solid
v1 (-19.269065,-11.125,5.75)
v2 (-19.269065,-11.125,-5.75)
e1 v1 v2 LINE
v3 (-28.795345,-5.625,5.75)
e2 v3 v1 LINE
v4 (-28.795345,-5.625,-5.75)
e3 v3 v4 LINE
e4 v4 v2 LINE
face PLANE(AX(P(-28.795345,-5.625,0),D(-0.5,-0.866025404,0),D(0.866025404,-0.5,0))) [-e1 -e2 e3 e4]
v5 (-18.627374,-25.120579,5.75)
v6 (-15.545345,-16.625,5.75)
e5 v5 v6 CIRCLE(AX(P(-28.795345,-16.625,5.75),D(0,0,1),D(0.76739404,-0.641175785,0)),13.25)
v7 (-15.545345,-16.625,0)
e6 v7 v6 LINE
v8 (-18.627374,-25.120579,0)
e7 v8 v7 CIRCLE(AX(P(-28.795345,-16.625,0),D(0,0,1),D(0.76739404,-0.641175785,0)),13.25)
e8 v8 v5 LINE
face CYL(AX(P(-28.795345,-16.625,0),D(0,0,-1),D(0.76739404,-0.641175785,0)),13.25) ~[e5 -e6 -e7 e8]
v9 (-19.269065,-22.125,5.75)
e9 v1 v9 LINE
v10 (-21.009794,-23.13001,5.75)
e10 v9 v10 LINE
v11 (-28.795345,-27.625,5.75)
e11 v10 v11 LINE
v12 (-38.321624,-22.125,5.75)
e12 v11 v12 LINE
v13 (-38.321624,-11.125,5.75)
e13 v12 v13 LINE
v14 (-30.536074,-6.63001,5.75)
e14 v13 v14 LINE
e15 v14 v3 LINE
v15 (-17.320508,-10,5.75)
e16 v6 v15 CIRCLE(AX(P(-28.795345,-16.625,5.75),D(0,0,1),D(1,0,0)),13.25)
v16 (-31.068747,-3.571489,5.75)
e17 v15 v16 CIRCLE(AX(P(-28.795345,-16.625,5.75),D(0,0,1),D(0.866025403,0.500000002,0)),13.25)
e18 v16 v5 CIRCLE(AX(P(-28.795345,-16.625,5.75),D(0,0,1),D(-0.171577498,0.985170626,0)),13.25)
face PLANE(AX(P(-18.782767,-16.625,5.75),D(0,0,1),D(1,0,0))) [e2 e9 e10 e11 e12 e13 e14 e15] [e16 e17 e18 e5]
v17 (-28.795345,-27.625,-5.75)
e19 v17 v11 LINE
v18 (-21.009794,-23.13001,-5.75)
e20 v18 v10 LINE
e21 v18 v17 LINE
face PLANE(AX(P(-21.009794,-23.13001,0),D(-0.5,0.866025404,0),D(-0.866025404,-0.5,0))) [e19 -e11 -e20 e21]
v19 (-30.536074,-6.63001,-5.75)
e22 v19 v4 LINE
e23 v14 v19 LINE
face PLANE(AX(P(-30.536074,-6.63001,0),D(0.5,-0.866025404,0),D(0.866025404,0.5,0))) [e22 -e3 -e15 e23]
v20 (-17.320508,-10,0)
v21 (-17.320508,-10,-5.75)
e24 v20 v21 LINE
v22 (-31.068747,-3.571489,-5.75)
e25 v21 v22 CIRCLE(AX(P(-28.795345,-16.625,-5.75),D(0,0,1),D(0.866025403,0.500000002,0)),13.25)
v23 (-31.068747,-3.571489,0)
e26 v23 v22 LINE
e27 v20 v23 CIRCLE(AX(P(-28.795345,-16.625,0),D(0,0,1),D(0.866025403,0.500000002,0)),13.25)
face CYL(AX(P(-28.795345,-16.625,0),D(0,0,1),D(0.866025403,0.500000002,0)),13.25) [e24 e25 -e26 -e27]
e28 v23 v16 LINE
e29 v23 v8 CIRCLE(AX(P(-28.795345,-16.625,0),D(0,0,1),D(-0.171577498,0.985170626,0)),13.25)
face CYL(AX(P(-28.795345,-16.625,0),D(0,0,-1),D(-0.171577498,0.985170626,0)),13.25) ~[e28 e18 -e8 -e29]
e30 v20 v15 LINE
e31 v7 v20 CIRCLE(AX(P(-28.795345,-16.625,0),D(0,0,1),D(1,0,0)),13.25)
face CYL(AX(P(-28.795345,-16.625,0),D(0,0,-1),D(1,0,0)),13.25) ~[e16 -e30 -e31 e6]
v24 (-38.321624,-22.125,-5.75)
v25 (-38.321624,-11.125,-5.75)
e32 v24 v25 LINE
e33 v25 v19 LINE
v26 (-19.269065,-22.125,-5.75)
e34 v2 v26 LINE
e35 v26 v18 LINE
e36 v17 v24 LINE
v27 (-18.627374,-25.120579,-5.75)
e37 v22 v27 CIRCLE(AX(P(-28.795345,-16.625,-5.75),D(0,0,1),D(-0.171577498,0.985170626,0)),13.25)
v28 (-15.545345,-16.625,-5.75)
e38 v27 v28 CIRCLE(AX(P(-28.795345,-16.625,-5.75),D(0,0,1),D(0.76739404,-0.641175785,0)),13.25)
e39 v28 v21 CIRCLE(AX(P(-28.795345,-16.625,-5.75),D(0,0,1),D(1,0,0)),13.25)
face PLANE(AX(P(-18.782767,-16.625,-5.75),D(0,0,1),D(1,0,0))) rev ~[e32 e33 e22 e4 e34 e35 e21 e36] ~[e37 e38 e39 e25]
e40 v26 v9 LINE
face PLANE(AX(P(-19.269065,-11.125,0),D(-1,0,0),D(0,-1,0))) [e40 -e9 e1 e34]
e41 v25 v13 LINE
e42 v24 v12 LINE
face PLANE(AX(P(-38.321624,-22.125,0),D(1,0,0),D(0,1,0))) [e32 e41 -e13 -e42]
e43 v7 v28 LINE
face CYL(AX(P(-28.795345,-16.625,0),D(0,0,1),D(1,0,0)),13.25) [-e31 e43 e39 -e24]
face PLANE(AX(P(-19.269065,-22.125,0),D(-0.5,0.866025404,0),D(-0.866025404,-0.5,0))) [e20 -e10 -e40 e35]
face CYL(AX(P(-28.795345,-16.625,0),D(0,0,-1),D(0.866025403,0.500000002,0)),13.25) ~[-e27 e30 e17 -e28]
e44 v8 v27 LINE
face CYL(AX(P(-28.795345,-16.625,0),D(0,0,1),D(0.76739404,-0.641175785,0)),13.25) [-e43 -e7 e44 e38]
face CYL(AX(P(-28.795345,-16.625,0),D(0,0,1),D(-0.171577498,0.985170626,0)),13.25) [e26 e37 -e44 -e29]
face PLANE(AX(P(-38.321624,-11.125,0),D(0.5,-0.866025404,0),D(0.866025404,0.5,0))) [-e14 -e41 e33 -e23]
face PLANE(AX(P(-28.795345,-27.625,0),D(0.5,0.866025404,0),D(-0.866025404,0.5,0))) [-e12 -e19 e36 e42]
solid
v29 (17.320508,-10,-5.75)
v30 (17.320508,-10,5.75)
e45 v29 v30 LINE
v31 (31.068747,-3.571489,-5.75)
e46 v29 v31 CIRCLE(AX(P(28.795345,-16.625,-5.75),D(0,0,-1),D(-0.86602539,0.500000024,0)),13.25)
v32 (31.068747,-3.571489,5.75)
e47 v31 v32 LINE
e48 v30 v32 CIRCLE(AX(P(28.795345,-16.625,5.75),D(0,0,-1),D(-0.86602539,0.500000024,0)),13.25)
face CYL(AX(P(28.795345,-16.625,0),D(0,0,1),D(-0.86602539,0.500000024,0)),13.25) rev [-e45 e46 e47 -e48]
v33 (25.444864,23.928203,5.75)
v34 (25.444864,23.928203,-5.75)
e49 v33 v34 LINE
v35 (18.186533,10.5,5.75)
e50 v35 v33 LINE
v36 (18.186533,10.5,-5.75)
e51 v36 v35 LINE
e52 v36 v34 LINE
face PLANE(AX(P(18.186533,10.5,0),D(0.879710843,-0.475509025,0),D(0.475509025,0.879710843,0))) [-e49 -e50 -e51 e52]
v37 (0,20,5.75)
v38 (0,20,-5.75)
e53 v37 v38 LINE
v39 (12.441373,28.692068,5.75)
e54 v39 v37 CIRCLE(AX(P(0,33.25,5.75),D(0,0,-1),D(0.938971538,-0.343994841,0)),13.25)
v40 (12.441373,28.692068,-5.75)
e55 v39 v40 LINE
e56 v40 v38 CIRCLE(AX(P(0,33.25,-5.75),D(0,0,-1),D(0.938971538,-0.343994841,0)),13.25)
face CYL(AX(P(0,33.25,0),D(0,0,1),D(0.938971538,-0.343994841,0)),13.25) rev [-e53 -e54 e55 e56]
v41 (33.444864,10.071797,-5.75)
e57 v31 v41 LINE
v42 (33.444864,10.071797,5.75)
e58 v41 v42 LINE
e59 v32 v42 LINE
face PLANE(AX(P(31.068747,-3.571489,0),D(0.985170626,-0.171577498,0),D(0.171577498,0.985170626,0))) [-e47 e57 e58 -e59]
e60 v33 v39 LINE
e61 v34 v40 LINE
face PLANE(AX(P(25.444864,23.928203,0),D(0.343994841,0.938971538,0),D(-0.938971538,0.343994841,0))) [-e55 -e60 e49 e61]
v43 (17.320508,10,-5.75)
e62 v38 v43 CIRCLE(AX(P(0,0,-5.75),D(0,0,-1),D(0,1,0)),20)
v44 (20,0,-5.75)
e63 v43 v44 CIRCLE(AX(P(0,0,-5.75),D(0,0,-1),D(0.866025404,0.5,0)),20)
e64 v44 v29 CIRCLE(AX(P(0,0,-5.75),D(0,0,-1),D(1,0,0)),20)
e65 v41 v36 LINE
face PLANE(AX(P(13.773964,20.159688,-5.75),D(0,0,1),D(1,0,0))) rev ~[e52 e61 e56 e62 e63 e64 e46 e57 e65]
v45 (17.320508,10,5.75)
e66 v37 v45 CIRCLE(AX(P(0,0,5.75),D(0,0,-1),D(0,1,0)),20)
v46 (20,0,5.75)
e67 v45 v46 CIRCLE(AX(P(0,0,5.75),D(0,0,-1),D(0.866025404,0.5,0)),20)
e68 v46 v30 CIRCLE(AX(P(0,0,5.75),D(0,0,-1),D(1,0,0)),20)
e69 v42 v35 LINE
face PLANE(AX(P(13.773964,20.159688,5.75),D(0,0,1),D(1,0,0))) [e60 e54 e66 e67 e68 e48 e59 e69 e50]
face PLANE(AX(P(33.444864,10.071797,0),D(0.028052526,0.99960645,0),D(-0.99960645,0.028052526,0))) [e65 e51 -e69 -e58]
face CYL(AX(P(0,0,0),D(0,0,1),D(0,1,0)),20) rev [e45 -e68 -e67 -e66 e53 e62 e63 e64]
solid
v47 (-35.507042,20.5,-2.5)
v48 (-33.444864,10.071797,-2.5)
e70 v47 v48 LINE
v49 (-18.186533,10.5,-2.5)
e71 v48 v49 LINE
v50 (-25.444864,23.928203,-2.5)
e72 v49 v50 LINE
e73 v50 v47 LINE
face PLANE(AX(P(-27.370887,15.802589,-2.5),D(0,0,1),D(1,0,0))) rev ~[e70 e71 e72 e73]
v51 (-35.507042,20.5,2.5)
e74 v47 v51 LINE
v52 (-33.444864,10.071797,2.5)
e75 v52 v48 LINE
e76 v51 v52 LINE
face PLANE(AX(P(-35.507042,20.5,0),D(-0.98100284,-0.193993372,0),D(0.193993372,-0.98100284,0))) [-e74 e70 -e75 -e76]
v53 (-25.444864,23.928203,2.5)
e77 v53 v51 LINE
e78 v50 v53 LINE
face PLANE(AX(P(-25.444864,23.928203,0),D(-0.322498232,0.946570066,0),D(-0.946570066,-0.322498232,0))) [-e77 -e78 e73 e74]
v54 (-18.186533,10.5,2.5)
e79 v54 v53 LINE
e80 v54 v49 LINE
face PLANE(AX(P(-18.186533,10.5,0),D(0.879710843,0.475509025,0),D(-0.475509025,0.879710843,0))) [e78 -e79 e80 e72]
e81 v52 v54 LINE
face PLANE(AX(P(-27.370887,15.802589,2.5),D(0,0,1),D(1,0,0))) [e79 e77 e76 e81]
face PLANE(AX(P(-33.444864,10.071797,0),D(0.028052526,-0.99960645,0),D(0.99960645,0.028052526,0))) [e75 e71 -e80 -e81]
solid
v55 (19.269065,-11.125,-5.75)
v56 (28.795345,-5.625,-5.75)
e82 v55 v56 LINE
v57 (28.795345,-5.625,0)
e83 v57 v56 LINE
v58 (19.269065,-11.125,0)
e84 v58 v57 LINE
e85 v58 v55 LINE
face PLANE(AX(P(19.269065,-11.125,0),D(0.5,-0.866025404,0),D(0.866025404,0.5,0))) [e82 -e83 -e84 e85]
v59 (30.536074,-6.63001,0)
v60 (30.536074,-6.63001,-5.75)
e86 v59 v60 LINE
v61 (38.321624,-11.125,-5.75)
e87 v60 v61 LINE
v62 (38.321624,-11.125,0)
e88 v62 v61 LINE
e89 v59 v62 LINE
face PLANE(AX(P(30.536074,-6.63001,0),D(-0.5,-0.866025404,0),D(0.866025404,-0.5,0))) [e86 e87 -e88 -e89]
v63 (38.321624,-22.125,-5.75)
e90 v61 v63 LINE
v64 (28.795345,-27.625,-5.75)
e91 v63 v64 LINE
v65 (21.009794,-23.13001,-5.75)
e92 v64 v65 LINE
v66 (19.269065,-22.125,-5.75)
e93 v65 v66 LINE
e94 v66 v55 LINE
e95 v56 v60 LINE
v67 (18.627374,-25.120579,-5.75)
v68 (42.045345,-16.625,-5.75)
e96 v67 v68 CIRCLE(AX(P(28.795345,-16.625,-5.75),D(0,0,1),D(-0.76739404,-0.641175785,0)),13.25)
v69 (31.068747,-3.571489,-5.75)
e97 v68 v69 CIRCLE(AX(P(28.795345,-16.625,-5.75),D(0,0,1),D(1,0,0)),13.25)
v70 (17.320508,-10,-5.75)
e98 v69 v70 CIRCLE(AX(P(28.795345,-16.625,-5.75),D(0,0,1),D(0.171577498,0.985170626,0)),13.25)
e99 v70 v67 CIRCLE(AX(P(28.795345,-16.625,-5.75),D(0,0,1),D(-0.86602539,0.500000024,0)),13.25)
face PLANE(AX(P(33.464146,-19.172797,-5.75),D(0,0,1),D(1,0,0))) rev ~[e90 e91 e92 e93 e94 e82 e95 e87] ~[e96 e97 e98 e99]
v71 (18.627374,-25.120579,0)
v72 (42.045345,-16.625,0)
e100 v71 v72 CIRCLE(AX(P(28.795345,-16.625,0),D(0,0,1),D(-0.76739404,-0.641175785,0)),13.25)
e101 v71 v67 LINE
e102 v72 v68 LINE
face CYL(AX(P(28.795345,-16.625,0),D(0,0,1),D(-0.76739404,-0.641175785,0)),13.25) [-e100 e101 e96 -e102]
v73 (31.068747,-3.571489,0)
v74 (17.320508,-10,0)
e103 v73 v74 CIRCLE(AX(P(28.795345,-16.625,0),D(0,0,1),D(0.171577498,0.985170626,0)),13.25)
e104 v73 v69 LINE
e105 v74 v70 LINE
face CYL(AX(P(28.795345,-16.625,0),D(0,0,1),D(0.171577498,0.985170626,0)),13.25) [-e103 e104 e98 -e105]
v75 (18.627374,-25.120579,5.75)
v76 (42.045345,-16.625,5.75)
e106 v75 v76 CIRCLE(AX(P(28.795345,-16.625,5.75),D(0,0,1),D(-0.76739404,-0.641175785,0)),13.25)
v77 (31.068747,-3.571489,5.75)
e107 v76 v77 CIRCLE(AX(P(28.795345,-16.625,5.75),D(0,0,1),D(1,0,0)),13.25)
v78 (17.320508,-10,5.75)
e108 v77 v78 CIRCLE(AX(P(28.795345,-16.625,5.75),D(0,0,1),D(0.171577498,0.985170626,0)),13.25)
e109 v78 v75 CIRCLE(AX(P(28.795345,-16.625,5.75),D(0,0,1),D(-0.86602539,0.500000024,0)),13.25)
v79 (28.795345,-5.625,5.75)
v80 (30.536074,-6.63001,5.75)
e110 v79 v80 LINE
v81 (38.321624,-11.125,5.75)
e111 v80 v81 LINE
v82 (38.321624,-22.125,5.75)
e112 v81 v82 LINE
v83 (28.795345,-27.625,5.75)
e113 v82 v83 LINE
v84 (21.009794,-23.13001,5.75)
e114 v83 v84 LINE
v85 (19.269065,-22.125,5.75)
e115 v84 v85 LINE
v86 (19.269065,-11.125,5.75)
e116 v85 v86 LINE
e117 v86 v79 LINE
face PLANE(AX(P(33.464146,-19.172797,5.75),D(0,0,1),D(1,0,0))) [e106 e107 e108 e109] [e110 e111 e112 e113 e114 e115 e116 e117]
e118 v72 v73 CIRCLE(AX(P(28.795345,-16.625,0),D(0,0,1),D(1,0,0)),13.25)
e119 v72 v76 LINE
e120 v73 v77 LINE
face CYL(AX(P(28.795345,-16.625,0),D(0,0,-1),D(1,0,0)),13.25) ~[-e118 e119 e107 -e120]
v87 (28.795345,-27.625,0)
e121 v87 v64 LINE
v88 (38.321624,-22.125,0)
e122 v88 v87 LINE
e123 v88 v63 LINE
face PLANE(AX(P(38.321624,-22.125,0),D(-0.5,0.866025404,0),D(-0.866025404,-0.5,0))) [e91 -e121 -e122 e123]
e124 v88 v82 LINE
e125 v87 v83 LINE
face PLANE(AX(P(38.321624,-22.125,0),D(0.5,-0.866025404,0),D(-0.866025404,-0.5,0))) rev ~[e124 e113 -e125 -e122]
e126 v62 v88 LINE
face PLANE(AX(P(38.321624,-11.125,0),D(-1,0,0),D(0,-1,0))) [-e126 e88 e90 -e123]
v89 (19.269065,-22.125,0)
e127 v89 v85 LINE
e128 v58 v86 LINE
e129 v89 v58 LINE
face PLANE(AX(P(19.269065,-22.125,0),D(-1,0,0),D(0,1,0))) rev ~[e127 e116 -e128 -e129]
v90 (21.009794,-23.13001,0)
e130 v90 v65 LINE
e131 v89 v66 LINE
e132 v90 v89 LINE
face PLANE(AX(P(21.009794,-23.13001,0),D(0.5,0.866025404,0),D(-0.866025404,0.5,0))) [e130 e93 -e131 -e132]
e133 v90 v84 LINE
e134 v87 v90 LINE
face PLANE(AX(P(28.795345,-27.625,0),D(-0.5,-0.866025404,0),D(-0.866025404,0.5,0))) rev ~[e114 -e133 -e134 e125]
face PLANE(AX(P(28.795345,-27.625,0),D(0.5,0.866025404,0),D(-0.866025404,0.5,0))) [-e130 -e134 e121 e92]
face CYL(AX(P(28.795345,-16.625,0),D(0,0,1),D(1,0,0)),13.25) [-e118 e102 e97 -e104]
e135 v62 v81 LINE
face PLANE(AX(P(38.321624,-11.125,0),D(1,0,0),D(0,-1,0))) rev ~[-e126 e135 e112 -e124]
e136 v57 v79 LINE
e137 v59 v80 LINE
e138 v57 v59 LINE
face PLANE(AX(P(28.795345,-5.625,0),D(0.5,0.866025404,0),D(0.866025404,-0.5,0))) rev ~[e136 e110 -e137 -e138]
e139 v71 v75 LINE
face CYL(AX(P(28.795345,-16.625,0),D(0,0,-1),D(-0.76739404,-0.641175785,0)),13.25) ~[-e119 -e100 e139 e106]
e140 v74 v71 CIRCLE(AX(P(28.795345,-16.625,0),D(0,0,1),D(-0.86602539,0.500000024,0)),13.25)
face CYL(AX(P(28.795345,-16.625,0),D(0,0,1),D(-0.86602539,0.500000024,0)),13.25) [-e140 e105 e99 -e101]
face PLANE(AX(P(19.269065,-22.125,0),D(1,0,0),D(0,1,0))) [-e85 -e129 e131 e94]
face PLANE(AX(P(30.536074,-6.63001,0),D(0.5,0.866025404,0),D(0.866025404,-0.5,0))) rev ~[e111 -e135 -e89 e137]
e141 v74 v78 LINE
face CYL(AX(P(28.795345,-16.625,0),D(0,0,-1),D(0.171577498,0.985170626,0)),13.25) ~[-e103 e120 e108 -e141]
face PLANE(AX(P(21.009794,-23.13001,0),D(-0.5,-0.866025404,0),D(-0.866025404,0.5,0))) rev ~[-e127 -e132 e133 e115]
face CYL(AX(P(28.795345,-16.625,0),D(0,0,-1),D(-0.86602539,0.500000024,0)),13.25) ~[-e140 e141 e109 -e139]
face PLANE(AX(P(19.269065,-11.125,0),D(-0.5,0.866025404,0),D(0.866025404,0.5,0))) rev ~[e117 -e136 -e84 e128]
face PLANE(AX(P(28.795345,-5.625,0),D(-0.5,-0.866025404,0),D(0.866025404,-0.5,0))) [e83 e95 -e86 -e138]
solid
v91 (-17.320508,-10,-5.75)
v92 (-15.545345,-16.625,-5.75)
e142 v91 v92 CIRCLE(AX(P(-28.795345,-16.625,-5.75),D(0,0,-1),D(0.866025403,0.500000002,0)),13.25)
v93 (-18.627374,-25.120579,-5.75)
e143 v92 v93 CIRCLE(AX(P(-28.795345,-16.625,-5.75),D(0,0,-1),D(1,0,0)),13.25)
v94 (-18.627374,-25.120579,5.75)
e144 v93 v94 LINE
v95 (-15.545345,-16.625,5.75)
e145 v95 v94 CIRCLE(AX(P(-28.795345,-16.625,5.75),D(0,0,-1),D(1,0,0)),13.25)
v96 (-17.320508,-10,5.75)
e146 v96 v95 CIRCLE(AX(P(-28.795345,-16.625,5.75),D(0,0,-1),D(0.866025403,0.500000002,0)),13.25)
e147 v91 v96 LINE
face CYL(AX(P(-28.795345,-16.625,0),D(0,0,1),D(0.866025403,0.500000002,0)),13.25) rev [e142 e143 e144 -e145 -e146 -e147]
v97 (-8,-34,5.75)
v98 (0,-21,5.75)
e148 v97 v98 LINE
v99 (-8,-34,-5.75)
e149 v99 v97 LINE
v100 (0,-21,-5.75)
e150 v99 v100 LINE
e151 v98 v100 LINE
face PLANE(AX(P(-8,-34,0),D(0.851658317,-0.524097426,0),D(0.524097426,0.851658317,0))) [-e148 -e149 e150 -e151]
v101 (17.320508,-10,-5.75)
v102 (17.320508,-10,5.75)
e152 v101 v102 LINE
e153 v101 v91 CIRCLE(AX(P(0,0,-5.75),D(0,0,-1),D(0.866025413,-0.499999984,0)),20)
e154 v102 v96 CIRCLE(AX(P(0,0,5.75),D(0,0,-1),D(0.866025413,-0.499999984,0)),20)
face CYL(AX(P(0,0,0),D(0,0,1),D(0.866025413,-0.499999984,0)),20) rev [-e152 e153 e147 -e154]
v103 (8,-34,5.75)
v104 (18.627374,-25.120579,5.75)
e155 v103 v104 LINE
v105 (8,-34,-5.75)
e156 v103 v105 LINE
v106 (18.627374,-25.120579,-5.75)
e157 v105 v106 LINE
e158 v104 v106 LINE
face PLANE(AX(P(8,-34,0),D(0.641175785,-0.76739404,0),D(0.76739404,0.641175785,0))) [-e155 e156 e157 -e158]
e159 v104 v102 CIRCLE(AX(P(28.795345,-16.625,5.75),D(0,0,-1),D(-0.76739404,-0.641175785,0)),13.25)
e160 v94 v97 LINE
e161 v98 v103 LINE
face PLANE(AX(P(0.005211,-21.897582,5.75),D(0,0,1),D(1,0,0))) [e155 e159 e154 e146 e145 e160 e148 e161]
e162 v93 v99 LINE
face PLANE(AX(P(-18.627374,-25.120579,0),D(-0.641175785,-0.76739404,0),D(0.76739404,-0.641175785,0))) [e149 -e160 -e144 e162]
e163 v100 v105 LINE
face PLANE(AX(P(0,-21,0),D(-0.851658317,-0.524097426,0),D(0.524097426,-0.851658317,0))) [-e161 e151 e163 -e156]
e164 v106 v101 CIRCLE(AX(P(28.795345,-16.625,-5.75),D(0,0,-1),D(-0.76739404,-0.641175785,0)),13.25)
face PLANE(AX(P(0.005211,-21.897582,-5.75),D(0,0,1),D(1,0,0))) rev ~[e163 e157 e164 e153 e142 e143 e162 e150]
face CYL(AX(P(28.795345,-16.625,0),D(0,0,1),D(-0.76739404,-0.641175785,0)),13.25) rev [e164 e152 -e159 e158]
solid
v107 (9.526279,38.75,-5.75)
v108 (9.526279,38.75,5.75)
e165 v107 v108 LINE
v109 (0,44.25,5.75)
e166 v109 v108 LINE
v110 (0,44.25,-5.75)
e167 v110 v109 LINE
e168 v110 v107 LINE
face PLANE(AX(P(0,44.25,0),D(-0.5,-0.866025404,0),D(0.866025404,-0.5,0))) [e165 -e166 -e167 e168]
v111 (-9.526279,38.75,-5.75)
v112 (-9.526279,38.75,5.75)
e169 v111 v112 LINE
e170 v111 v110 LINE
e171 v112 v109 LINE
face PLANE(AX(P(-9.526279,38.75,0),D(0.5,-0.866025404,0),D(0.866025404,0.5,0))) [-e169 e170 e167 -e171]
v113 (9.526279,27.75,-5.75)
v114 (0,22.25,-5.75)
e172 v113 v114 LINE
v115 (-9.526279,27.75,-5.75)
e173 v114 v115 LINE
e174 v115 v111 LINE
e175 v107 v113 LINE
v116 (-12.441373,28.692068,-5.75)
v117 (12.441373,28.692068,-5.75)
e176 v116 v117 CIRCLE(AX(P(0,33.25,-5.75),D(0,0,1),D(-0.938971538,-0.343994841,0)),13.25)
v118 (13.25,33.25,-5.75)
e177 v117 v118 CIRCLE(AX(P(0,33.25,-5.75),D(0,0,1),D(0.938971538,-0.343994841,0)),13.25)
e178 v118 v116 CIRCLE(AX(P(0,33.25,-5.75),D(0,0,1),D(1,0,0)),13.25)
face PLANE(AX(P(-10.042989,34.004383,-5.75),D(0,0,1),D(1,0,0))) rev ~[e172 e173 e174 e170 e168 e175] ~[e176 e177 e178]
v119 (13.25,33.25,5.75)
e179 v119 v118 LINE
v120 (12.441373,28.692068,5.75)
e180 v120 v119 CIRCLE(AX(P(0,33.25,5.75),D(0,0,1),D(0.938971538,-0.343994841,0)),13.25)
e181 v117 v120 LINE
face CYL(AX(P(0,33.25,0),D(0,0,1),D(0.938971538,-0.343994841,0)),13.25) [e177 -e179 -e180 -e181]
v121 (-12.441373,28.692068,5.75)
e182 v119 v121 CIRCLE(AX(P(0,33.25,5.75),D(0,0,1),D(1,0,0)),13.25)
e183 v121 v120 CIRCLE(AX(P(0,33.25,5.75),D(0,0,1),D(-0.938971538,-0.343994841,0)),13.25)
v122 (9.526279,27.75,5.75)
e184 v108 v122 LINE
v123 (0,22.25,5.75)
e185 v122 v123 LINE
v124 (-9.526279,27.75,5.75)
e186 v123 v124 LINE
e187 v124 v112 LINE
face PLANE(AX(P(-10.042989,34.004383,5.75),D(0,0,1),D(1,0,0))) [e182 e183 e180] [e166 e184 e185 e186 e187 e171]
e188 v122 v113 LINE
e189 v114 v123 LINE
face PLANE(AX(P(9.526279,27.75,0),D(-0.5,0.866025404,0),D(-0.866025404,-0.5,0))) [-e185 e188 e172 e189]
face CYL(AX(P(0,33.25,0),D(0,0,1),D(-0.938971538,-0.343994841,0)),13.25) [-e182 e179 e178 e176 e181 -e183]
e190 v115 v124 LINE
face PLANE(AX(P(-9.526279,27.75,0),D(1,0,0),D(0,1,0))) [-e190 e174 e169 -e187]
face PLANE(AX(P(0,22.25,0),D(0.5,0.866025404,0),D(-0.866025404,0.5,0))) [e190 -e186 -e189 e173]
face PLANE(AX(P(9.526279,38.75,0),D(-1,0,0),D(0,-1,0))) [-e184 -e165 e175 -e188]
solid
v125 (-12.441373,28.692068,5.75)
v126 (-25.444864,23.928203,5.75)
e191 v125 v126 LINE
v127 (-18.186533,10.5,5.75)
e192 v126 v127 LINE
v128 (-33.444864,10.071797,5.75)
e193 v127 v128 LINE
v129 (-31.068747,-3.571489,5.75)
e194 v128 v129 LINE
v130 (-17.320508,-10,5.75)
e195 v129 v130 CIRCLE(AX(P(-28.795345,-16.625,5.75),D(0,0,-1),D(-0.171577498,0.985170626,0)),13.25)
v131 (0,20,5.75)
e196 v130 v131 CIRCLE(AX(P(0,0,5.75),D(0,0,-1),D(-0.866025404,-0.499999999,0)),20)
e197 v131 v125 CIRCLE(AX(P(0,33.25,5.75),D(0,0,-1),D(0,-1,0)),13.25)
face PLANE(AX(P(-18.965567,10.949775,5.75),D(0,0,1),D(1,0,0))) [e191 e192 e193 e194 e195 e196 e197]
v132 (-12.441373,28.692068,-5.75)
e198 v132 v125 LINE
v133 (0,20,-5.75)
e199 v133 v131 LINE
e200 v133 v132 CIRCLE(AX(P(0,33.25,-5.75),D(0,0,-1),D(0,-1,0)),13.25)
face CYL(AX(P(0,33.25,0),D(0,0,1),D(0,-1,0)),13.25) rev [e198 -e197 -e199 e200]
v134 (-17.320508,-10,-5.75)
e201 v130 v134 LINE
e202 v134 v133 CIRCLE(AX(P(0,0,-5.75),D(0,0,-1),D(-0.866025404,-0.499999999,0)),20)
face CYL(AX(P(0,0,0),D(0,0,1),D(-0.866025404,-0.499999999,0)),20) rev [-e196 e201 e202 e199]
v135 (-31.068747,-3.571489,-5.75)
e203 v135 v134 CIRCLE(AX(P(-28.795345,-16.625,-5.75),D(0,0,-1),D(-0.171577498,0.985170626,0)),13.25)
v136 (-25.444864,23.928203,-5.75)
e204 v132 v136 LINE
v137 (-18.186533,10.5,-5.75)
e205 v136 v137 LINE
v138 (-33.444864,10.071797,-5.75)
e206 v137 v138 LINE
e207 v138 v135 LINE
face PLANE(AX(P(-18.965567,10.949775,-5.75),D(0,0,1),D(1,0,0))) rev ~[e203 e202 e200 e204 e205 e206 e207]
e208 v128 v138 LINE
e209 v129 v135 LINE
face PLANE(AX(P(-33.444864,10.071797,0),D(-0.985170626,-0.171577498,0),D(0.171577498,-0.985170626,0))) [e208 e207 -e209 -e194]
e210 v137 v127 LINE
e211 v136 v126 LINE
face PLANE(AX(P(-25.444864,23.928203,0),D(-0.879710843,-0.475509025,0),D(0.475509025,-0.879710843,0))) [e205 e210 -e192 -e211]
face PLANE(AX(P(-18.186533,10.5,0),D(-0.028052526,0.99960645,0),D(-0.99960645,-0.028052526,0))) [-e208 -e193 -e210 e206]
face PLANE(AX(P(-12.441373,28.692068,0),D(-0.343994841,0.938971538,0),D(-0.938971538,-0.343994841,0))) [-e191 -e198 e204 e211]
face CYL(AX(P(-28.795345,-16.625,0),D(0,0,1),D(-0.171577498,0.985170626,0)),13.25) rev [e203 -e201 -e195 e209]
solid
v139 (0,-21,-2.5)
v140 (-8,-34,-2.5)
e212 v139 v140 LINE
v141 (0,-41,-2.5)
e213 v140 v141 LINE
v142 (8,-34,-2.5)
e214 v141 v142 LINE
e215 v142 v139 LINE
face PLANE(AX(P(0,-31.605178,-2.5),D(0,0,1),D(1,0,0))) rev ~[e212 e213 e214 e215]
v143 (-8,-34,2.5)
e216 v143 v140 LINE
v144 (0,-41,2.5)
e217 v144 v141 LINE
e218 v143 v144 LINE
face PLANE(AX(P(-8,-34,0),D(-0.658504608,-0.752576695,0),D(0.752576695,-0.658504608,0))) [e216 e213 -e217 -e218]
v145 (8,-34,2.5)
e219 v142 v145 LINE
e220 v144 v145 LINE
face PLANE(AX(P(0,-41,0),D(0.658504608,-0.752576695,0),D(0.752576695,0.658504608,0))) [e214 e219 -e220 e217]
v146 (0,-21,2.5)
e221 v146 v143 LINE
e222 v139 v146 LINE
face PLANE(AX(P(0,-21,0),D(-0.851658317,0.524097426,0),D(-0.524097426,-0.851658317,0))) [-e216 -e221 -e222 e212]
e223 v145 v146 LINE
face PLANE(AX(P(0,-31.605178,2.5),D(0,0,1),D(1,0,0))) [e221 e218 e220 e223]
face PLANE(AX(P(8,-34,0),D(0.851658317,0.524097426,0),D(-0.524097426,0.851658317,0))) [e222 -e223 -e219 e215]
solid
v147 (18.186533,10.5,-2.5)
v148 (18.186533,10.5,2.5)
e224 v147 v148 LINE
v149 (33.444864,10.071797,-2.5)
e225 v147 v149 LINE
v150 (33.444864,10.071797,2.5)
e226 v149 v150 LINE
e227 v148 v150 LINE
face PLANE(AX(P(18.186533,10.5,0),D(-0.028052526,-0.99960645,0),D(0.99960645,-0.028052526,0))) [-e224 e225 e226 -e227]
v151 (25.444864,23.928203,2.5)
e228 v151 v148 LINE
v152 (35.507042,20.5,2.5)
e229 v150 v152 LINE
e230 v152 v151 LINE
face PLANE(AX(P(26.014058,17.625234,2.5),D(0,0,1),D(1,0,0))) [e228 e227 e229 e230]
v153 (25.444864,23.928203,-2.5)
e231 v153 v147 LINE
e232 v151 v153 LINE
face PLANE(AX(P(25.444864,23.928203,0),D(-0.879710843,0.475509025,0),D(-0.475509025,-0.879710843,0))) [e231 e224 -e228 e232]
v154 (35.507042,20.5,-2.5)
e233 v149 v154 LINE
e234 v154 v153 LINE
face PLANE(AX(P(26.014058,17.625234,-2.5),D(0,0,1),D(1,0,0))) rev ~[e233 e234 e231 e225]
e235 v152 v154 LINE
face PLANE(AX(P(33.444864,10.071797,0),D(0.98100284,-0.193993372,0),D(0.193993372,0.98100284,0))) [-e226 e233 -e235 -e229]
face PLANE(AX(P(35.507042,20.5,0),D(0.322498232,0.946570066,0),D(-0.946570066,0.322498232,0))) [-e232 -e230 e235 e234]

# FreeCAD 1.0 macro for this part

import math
import FreeCAD as App
import Part
import Sketcher

V = App.Vector
Q = App.Units.Quantity

doc = App.newDocument("Part")
body = doc.addObject("PartDesign::Body", "Body")

# Sketch on XY plane
sketch1 = body.newObject("Sketcher::SketchObject", "Sketch")
sketch1.AttachmentSupport = (doc.getObject("XY_Plane"), [""])
sketch1.MapMode = "FlatFace"
sketch1.addGeometry(Part.ArcOfCircle(Part.Circle(V(0, 0, 0), V(0, 0, 1), 20), math.radians(30), math.radians(90)), False)
sketch1.addGeometry(Part.ArcOfCircle(Part.Circle(V(0, 0, 0), V(0, 0, 1), 20), math.radians(0), math.radians(30)), False)
sketch1.addGeometry(Part.ArcOfCircle(Part.Circle(V(0, 0, 0), V(0, 0, 1), 20), math.radians(-30), math.radians(0)), False)
sketch1.addGeometry(Part.ArcOfCircle(Part.Circle(V(29, -17, 0), V(0, 0, 1), 13), math.radians(80), math.radians(150)), False)
sketch1.addGeometry(Part.LineSegment(V(31, -4, 0), V(33, 10, 0)), False)
sketch1.addGeometry(Part.LineSegment(V(33, 10, 0), V(18, 10, 0)), False)
sketch1.addGeometry(Part.LineSegment(V(18, 10, 0), V(25, 24, 0)), False)
sketch1.addGeometry(Part.LineSegment(V(25, 24, 0), V(12, 29, 0)), False)
sketch1.addGeometry(Part.ArcOfCircle(Part.Circle(V(0, 33, 0), V(0, 0, 1), 13), math.radians(-90), math.radians(-20)), False)
sketch1.addConstraint(Sketcher.Constraint("Tangent", 0, 1, 1, 2))
sketch1.addConstraint(Sketcher.Constraint("Tangent", 1, 1, 2, 2))
sketch1.addConstraint(Sketcher.Constraint("Tangent", 2, 1, 3, 2))
sketch1.addConstraint(Sketcher.Constraint("Coincident", 3, 1, 4, 1))
sketch1.addConstraint(Sketcher.Constraint("Coincident", 4, 2, 5, 1))
sketch1.addConstraint(Sketcher.Constraint("Coincident", 5, 2, 6, 1))
sketch1.addConstraint(Sketcher.Constraint("Coincident", 6, 2, 7, 1))
sketch1.addConstraint(Sketcher.Constraint("Coincident", 7, 2, 8, 2))
sketch1.addConstraint(Sketcher.Constraint("Tangent", 8, 1, 0, 2))
sketch1.addConstraint(Sketcher.Constraint("Coincident", 0, 3, -1, 1))
sketch1.addConstraint(Sketcher.Constraint("Coincident", 2, 3, -1, 1))
sketch1.addConstraint(Sketcher.Constraint("Equal", 3, 8))
sketch1.addConstraint(Sketcher.Constraint("PointOnObject", 8, 3, -2))
sketch1.addConstraint(Sketcher.Constraint("PointOnObject", 1, 1, -1))
sketch1.addConstraint(Sketcher.Constraint("Vertical", 0, 1, 2, 1))
sketch1.addConstraint(Sketcher.Constraint("Equal", 5, 6))
sketch1.addConstraint(Sketcher.Constraint("Equal", 4, 7))
sketch1.addConstraint(Sketcher.Constraint("Radius", 0, Q("20 mm")))
sketch1.addConstraint(Sketcher.Constraint("Radius", 3, Q("13.25 mm")))
sketch1.addConstraint(Sketcher.Constraint("DistanceY", -1, 1, 0, 1, Q("10 mm")))
sketch1.addConstraint(Sketcher.Constraint("DistanceX", 6, 2, 4, 2, Q("8 mm")))
sketch1.addConstraint(Sketcher.Constraint("DistanceY", -1, 1, 5, 2, Q("10.5 mm")))
sketch1.addConstraint(Sketcher.Constraint("DistanceX", 3, 3, 3, 1, Q("2.273402 mm")))
sketch1.addConstraint(Sketcher.Constraint("DistanceY", -1, 1, 7, 2, Q("28.692068 mm")))
sketch1.addConstraint(Sketcher.Constraint("DistanceX", 3, 3, 4, 2, Q("4.649519 mm")))
sketch1.addConstraint(Sketcher.Constraint("DistanceX", 5, 2, 4, 2, Q("15.25833 mm")))
pad1 = body.newObject("PartDesign::Pad", "Pad")
pad1.Profile = sketch1
pad1.Length = 11.5
pad1.Midplane = True
body2 = doc.addObject("PartDesign::Body", "Body001")

# Sketch on XY plane
sketch2 = body2.newObject("Sketcher::SketchObject", "Sketch001")
sketch2.AttachmentSupport = (doc.getObject("XY_Plane001"), [""])
sketch2.MapMode = "FlatFace"
sketch2.addGeometry(Part.ArcOfCircle(Part.Circle(V(29, -17, 0), V(0, 0, 1), 13), math.radians(150), math.radians(220)), False)
sketch2.addGeometry(Part.ArcOfCircle(Part.Circle(V(0, 0, 0), V(0, 0, 1), 20), math.radians(-150), math.radians(-30)), False)
sketch2.addGeometry(Part.ArcOfCircle(Part.Circle(V(-29, -17, 0), V(0, 0, 1), 13), math.radians(0), math.radians(30)), False)
sketch2.addGeometry(Part.ArcOfCircle(Part.Circle(V(-29, -17, 0), V(0, 0, 1), 13), math.radians(-40), math.radians(0)), False)
sketch2.addGeometry(Part.LineSegment(V(-19, -25, 0), V(-8, -34, 0)), False)
sketch2.addGeometry(Part.LineSegment(V(-8, -34, 0), V(0, -21, 0)), False)
sketch2.addGeometry(Part.LineSegment(V(0, -21, 0), V(8, -34, 0)), False)
sketch2.addGeometry(Part.LineSegment(V(8, -34, 0), V(19, -25, 0)), False)
sketch2.addConstraint(Sketcher.Constraint("Tangent", 0, 1, 1, 2))
sketch2.addConstraint(Sketcher.Constraint("Tangent", 1, 1, 2, 2))
sketch2.addConstraint(Sketcher.Constraint("Tangent", 2, 1, 3, 2))
sketch2.addConstraint(Sketcher.Constraint("Coincident", 3, 1, 4, 1))
sketch2.addConstraint(Sketcher.Constraint("Coincident", 4, 2, 5, 1))
sketch2.addConstraint(Sketcher.Constraint("Coincident", 5, 2, 6, 1))
sketch2.addConstraint(Sketcher.Constraint("Coincident", 6, 2, 7, 1))
sketch2.addConstraint(Sketcher.Constraint("Coincident", 7, 2, 0, 2))
sketch2.addConstraint(Sketcher.Constraint("Coincident", 1, 3, -1, 1))
sketch2.addConstraint(Sketcher.Constraint("Equal", 0, 2))
sketch2.addConstraint(Sketcher.Constraint("Equal", 2, 3))
sketch2.addConstraint(Sketcher.Constraint("Symmetric", 4, 2, 6, 2, -2))
sketch2.addConstraint(Sketcher.Constraint("Symmetric", 3, 1, 7, 2, -2))
sketch2.addConstraint(Sketcher.Constraint("PointOnObject", 5, 2, -2))
sketch2.addConstraint(Sketcher.Constraint("Horizontal", 3, 3, 2, 1))
sketch2.addConstraint(Sketcher.Constraint("Radius", 1, Q("20 mm")))
sketch2.addConstraint(Sketcher.Constraint("Radius", 0, Q("13.25 mm")))
sketch2.addConstraint(Sketcher.Constraint("DistanceY", 0, 1, -1, 1, Q("10 mm")))
sketch2.addConstraint(Sketcher.Constraint("DistanceX", 4, 2, -1, 1, Q("8 mm")))
sketch2.addConstraint(Sketcher.Constraint("DistanceY", 4, 2, -1, 1, Q("34 mm")))
sketch2.addConstraint(Sketcher.Constraint("DistanceY", 5, 2, -1, 1, Q("21 mm")))
sketch2.addConstraint(Sketcher.Constraint("DistanceY", 3, 1, -1, 1, Q("25.120579 mm")))
pad2 = body2.newObject("PartDesign::Pad", "Pad001")
pad2.Profile = sketch2
pad2.Length = 11.5
pad2.Midplane = True
body3 = doc.addObject("PartDesign::Body", "Body002")

# Sketch on XY plane
sketch3 = body3.newObject("Sketcher::SketchObject", "Sketch002")
sketch3.AttachmentSupport = (doc.getObject("XY_Plane002"), [""])
sketch3.MapMode = "FlatFace"
sketch3.addGeometry(Part.ArcOfCircle(Part.Circle(V(0, 0, 0), V(0, 0, 1), 20), math.radians(90), math.radians(210)), False)
sketch3.addGeometry(Part.ArcOfCircle(Part.Circle(V(0, 33, 0), V(0, 0, 1), 13), math.radians(-160), math.radians(-90)), False)
sketch3.addGeometry(Part.LineSegment(V(-12, 29, 0), V(-25, 24, 0)), False)
sketch3.addGeometry(Part.LineSegment(V(-25, 24, 0), V(-18, 10, 0)), False)
sketch3.addGeometry(Part.LineSegment(V(-18, 10, 0), V(-33, 10, 0)), False)
sketch3.addGeometry(Part.LineSegment(V(-33, 10, 0), V(-31, -4, 0)), False)
sketch3.addGeometry(Part.ArcOfCircle(Part.Circle(V(-29, -17, 0), V(0, 0, 1), 13), math.radians(30), math.radians(100)), False)
sketch3.addConstraint(Sketcher.Constraint("Tangent", 0, 1, 1, 2))
sketch3.addConstraint(Sketcher.Constraint("Coincident", 1, 1, 2, 1))
sketch3.addConstraint(Sketcher.Constraint("Coincident", 2, 2, 3, 1))
sketch3.addConstraint(Sketcher.Constraint("Coincident", 3, 2, 4, 1))
sketch3.addConstraint(Sketcher.Constraint("Coincident", 4, 2, 5, 1))
sketch3.addConstraint(Sketcher.Constraint("Coincident", 5, 2, 6, 2))
sketch3.addConstraint(Sketcher.Constraint("Tangent", 6, 1, 0, 2))
sketch3.addConstraint(Sketcher.Constraint("Coincident", 0, 3, -1, 1))
sketch3.addConstraint(Sketcher.Constraint("Equal", 1, 6))
sketch3.addConstraint(Sketcher.Constraint("PointOnObject", 1, 3, -2))
sketch3.addConstraint(Sketcher.Constraint("Equal", 3, 4))
sketch3.addConstraint(Sketcher.Constraint("Equal", 2, 5))
sketch3.addConstraint(Sketcher.Constraint("Radius", 0, Q("20 mm")))
sketch3.addConstraint(Sketcher.Constraint("Radius", 1, Q("13.25 mm")))
sketch3.addConstraint(Sketcher.Constraint("DistanceY", 6, 1, -1, 1, Q("10 mm")))
sketch3.addConstraint(Sketcher.Constraint("DistanceX", 4, 2, 2, 2, Q("8 mm")))
sketch3.addConstraint(Sketcher.Constraint("DistanceY", -1, 1, 3, 2, Q("10.5 mm")))
sketch3.addConstraint(Sketcher.Constraint("DistanceX", 5, 2, 6, 3, Q("2.273402 mm")))
sketch3.addConstraint(Sketcher.Constraint("DistanceY", -1, 1, 1, 1, Q("28.692068 mm")))
sketch3.addConstraint(Sketcher.Constraint("DistanceX", 2, 2, 1, 1, Q("13.003491 mm")))
sketch3.addConstraint(Sketcher.Constraint("DistanceX", 2, 2, 3, 2, Q("7.25833 mm")))
pad3 = body3.newObject("PartDesign::Pad", "Pad002")
pad3.Profile = sketch3
pad3.Length = 11.5
pad3.Midplane = True
body4 = doc.addObject("PartDesign::Body", "Body003")

# Sketch on XY plane
sketch4 = body4.newObject("Sketcher::SketchObject", "Sketch003")
sketch4.AttachmentSupport = (doc.getObject("XY_Plane003"), [""])
sketch4.MapMode = "FlatFace"
sketch4.addGeometry(Part.LineSegment(V(25, 24, 0), V(18, 10, 0)), False)
sketch4.addGeometry(Part.LineSegment(V(18, 10, 0), V(33, 10, 0)), False)
sketch4.addGeometry(Part.LineSegment(V(33, 10, 0), V(36, 20, 0)), False)
sketch4.addGeometry(Part.LineSegment(V(36, 20, 0), V(25, 24, 0)), False)
sketch4.addConstraint(Sketcher.Constraint("Coincident", 0, 2, 1, 1))
sketch4.addConstraint(Sketcher.Constraint("Coincident", 1, 2, 2, 1))
sketch4.addConstraint(Sketcher.Constraint("Coincident", 2, 2, 3, 1))
sketch4.addConstraint(Sketcher.Constraint("Coincident", 3, 2, 0, 1))
sketch4.addConstraint(Sketcher.Constraint("Equal", 0, 1))
sketch4.addConstraint(Sketcher.Constraint("Equal", 2, 3))
sketch4.addConstraint(Sketcher.Constraint("DistanceY", 0, 2, 2, 2, Q("10 mm")))
sketch4.addConstraint(Sketcher.Constraint("DistanceX", 3, 2, 1, 2, Q("8 mm")))
sketch4.addConstraint(Sketcher.Constraint("DistanceY", -1, 1, 0, 2, Q("10.5 mm")))
sketch4.addConstraint(Sketcher.Constraint("DistanceX", -1, 1, 2, 2, Q("35.507042 mm")))
sketch4.addConstraint(Sketcher.Constraint("DistanceX", 0, 2, 1, 2, Q("15.25833 mm")))
sketch4.addConstraint(Sketcher.Constraint("DistanceX", 0, 2, 2, 2, Q("17.320508 mm")))
pad4 = body4.newObject("PartDesign::Pad", "Pad003")
pad4.Profile = sketch4
pad4.Length = 5
pad4.Midplane = True
body5 = doc.addObject("PartDesign::Body", "Body004")

# Sketch on XY plane
sketch5 = body5.newObject("Sketcher::SketchObject", "Sketch004")
sketch5.AttachmentSupport = (doc.getObject("XY_Plane004"), [""])
sketch5.MapMode = "FlatFace"
sketch5.addGeometry(Part.LineSegment(V(-18, 10, 0), V(-25, 24, 0)), False)
sketch5.addGeometry(Part.LineSegment(V(-25, 24, 0), V(-36, 20, 0)), False)
sketch5.addGeometry(Part.LineSegment(V(-36, 20, 0), V(-33, 10, 0)), False)
sketch5.addGeometry(Part.LineSegment(V(-33, 10, 0), V(-18, 10, 0)), False)
sketch5.addConstraint(Sketcher.Constraint("Coincident", 0, 2, 1, 1))
sketch5.addConstraint(Sketcher.Constraint("Coincident", 1, 2, 2, 1))
sketch5.addConstraint(Sketcher.Constraint("Coincident", 2, 2, 3, 1))
sketch5.addConstraint(Sketcher.Constraint("Coincident", 3, 2, 0, 1))
sketch5.addConstraint(Sketcher.Constraint("Equal", 1, 2))
sketch5.addConstraint(Sketcher.Constraint("Equal", 0, 3))
sketch5.addConstraint(Sketcher.Constraint("DistanceX", 2, 2, 0, 2, Q("8 mm")))
sketch5.addConstraint(Sketcher.Constraint("DistanceY", 3, 2, 1, 2, Q("10 mm")))
sketch5.addConstraint(Sketcher.Constraint("DistanceY", -1, 1, 1, 2, Q("20.5 mm")))
sketch5.addConstraint(Sketcher.Constraint("DistanceX", 1, 2, -1, 1, Q("35.507042 mm")))
sketch5.addConstraint(Sketcher.Constraint("DistanceX", 0, 2, 3, 2, Q("7.25833 mm")))
sketch5.addConstraint(Sketcher.Constraint("DistanceX", 1, 2, 3, 2, Q("17.320508 mm")))
pad5 = body5.newObject("PartDesign::Pad", "Pad004")
pad5.Profile = sketch5
pad5.Length = 5
pad5.Midplane = True
body6 = doc.addObject("PartDesign::Body", "Body005")

# Sketch on XY plane
sketch6 = body6.newObject("Sketcher::SketchObject", "Sketch005")
sketch6.AttachmentSupport = (doc.getObject("XY_Plane005"), [""])
sketch6.MapMode = "FlatFace"
sketch6.addGeometry(Part.LineSegment(V(0, -41, 0), V(8, -34, 0)), False)
sketch6.addGeometry(Part.LineSegment(V(8, -34, 0), V(0, -21, 0)), False)
sketch6.addGeometry(Part.LineSegment(V(0, -21, 0), V(-8, -34, 0)), False)
sketch6.addGeometry(Part.LineSegment(V(-8, -34, 0), V(0, -41, 0)), False)
sketch6.addConstraint(Sketcher.Constraint("Coincident", 0, 2, 1, 1))
sketch6.addConstraint(Sketcher.Constraint("Coincident", 1, 2, 2, 1))
sketch6.addConstraint(Sketcher.Constraint("Coincident", 2, 2, 3, 1))
sketch6.addConstraint(Sketcher.Constraint("Coincident", 3, 2, 0, 1))
sketch6.addConstraint(Sketcher.Constraint("Symmetric", 0, 2, 2, 2, -2))
sketch6.addConstraint(Sketcher.Constraint("PointOnObject", 1, 2, -2))
sketch6.addConstraint(Sketcher.Constraint("PointOnObject", 3, 2, -2))
sketch6.addConstraint(Sketcher.Constraint("DistanceX", -1, 1, 0, 2, Q("8 mm")))
sketch6.addConstraint(Sketcher.Constraint("DistanceY", 0, 2, -1, 1, Q("34 mm")))
sketch6.addConstraint(Sketcher.Constraint("DistanceY", 1, 2, -1, 1, Q("21 mm")))
sketch6.addConstraint(Sketcher.Constraint("DistanceY", 3, 2, -1, 1, Q("41 mm")))
pad6 = body6.newObject("PartDesign::Pad", "Pad005")
pad6.Profile = sketch6
pad6.Length = 5
pad6.Midplane = True
body7 = doc.addObject("PartDesign::Body", "Body006")

# Sketch on XY plane
sketch7 = body7.newObject("Sketcher::SketchObject", "Sketch006")
sketch7.AttachmentSupport = (doc.getObject("XY_Plane006"), [""])
sketch7.MapMode = "FlatFace"
sketch7.addGeometry(Part.ArcOfCircle(Part.Circle(V(28.8, -16.6, 0), V(0, 0, 1), 13.2), math.radians(0), math.radians(80)), False)
sketch7.addGeometry(Part.ArcOfCircle(Part.Circle(V(28.8, -16.6, 0), V(0, 0, 1), 13.2), math.radians(80), math.radians(150)), False)
sketch7.addGeometry(Part.ArcOfCircle(Part.Circle(V(28.8, -16.6, 0), V(0, 0, 1), 13.2), math.radians(150), math.radians(220)), False)
sketch7.addGeometry(Part.ArcOfCircle(Part.Circle(V(28.8, -16.6, 0), V(0, 0, 1), 13.2), math.radians(-140), math.radians(0)), False)
sketch7.addGeometry(Part.LineSegment(V(28.8, -5.6, 0), V(30.5, -6.6, 0)), False)
sketch7.addGeometry(Part.LineSegment(V(30.5, -6.6, 0), V(38.3, -11.1, 0)), False)
sketch7.addGeometry(Part.LineSegment(V(38.3, -11.1, 0), V(38.3, -22.1, 0)), False)
sketch7.addGeometry(Part.LineSegment(V(38.3, -22.1, 0), V(28.8, -27.6, 0)), False)
sketch7.addGeometry(Part.LineSegment(V(28.8, -27.6, 0), V(21, -23.1, 0)), False)
sketch7.addGeometry(Part.LineSegment(V(21, -23.1, 0), V(19.3, -22.1, 0)), False)
sketch7.addGeometry(Part.LineSegment(V(19.3, -22.1, 0), V(19.3, -11.1, 0)), False)
sketch7.addGeometry(Part.LineSegment(V(19.3, -11.1, 0), V(28.8, -5.6, 0)), False)
sketch7.addConstraint(Sketcher.Constraint("Tangent", 0, 2, 1, 1))
sketch7.addConstraint(Sketcher.Constraint("Tangent", 1, 2, 2, 1))
sketch7.addConstraint(Sketcher.Constraint("Tangent", 2, 2, 3, 1))
sketch7.addConstraint(Sketcher.Constraint("Tangent", 3, 2, 0, 1))
sketch7.addConstraint(Sketcher.Constraint("Coincident", 4, 2, 5, 1))
sketch7.addConstraint(Sketcher.Constraint("Coincident", 5, 2, 6, 1))
sketch7.addConstraint(Sketcher.Constraint("Coincident", 6, 2, 7, 1))
sketch7.addConstraint(Sketcher.Constraint("Coincident", 7, 2, 8, 1))
sketch7.addConstraint(Sketcher.Constraint("Coincident", 8, 2, 9, 1))
sketch7.addConstraint(Sketcher.Constraint("Coincident", 9, 2, 10, 1))
sketch7.addConstraint(Sketcher.Constraint("Coincident", 10, 2, 11, 1))
sketch7.addConstraint(Sketcher.Constraint("Coincident", 11, 2, 4, 1))
sketch7.addConstraint(Sketcher.Constraint("Vertical", 6))
sketch7.addConstraint(Sketcher.Constraint("Vertical", 10))
sketch7.addConstraint(Sketcher.Constraint("Equal", 0, 1))
sketch7.addConstraint(Sketcher.Constraint("Parallel", 4, 5))
sketch7.addConstraint(Sketcher.Constraint("Parallel", 5, 8))
sketch7.addConstraint(Sketcher.Constraint("Parallel", 8, 9))
sketch7.addConstraint(Sketcher.Constraint("Parallel", 7, 11))
sketch7.addConstraint(Sketcher.Constraint("Horizontal", 2, 3, 3, 2))
sketch7.addConstraint(Sketcher.Constraint("Horizontal", 6, 2, 9, 2))
sketch7.addConstraint(Sketcher.Constraint("Horizontal", 5, 2, 10, 2))
sketch7.addConstraint(Sketcher.Constraint("Vertical", 3, 3, 7, 2))
sketch7.addConstraint(Sketcher.Constraint("Vertical", 7, 2, 11, 2))
sketch7.addConstraint(Sketcher.Constraint("Equal", 5, 8))
sketch7.addConstraint(Sketcher.Constraint("DistanceY", 6, 2, 6, 1, Q("11 mm")))
sketch7.addConstraint(Sketcher.Constraint("Angle", 4, Q("-30 deg")))
sketch7.addConstraint(Sketcher.Constraint("Radius", 0, Q("13.25 mm")))
sketch7.addConstraint(Sketcher.Constraint("Distance", 7, Q("11 mm")))
sketch7.addConstraint(Sketcher.Constraint("DistanceY", 1, 2, -1, 1, Q("10 mm")))
sketch7.addConstraint(Sketcher.Constraint("DistanceY", 7, 2, 0, 3, Q("11 mm")))
sketch7.addConstraint(Sketcher.Constraint("DistanceY", 0, 3, -1, 1, Q("16.625 mm")))
sketch7.addConstraint(Sketcher.Constraint("DistanceX", 0, 3, 0, 2, Q("2.273402 mm")))
sketch7.addConstraint(Sketcher.Constraint("Distance", 4, Q("2.010021 mm")))
sketch7.addConstraint(Sketcher.Constraint("DistanceX", -1, 1, 1, 2, Q("17.320508 mm")))
sketch7.addConstraint(Sketcher.Constraint("DistanceY", 2, 2, -1, 1, Q("25.120579 mm")))
pad7 = body7.newObject("PartDesign::Pad", "Pad006")
pad7.Profile = sketch7
pad7.Length = 11.5
pad7.Midplane = True
body8 = doc.addObject("PartDesign::Body", "Body007")

# Sketch on XY plane
sketch8 = body8.newObject("Sketcher::SketchObject", "Sketch007")
sketch8.AttachmentSupport = (doc.getObject("XY_Plane007"), [""])
sketch8.MapMode = "FlatFace"
sketch8.addGeometry(Part.ArcOfCircle(Part.Circle(V(-28.8, -16.6, 0), V(0, 0, 1), 13.2), math.radians(-40), math.radians(0)), False)
sketch8.addGeometry(Part.ArcOfCircle(Part.Circle(V(-28.8, -16.6, 0), V(0, 0, 1), 13.3), math.radians(0), math.radians(30)), False)
sketch8.addGeometry(Part.ArcOfCircle(Part.Circle(V(-28.8, -16.6, 0), V(0, 0, 1), 13.2), math.radians(30), math.radians(100)), False)
sketch8.addGeometry(Part.ArcOfCircle(Part.Circle(V(-28.8, -16.6, 0), V(0, 0, 1), 13.2), math.radians(100), math.radians(320)), False)
sketch8.addGeometry(Part.LineSegment(V(-19.3, -11.1, 0), V(-19.3, -22.1, 0)), False)
sketch8.addGeometry(Part.LineSegment(V(-19.3, -22.1, 0), V(-21, -23.1, 0)), False)
sketch8.addGeometry(Part.LineSegment(V(-21, -23.1, 0), V(-28.8, -27.6, 0)), False)
sketch8.addGeometry(Part.LineSegment(V(-28.8, -27.6, 0), V(-38.3, -22.1, 0)), False)
sketch8.addGeometry(Part.LineSegment(V(-38.3, -22.1, 0), V(-38.3, -11.1, 0)), False)
sketch8.addGeometry(Part.LineSegment(V(-38.3, -11.1, 0), V(-30.5, -6.6, 0)), False)
sketch8.addGeometry(Part.LineSegment(V(-30.5, -6.6, 0), V(-28.8, -5.6, 0)), False)
sketch8.addGeometry(Part.LineSegment(V(-28.8, -5.6, 0), V(-19.3, -11.1, 0)), False)
sketch8.addConstraint(Sketcher.Constraint("Tangent", 0, 2, 1, 1))
sketch8.addConstraint(Sketcher.Constraint("Tangent", 1, 2, 2, 1))
sketch8.addConstraint(Sketcher.Constraint("Tangent", 2, 2, 3, 1))
sketch8.addConstraint(Sketcher.Constraint("Tangent", 3, 2, 0, 1))
sketch8.addConstraint(Sketcher.Constraint("Coincident", 4, 2, 5, 1))
sketch8.addConstraint(Sketcher.Constraint("Coincident", 5, 2, 6, 1))
sketch8.addConstraint(Sketcher.Constraint("Coincident", 6, 2, 7, 1))
sketch8.addConstraint(Sketcher.Constraint("Coincident", 7, 2, 8, 1))
sketch8.addConstraint(Sketcher.Constraint("Coincident", 8, 2, 9, 1))
sketch8.addConstraint(Sketcher.Constraint("Coincident", 9, 2, 10, 1))
sketch8.addConstraint(Sketcher.Constraint("Coincident", 10, 2, 11, 1))
sketch8.addConstraint(Sketcher.Constraint("Coincident", 11, 2, 4, 1))
sketch8.addConstraint(Sketcher.Constraint("Vertical", 4))
sketch8.addConstraint(Sketcher.Constraint("Vertical", 8))
sketch8.addConstraint(Sketcher.Constraint("Equal", 0, 1))
sketch8.addConstraint(Sketcher.Constraint("Parallel", 5, 6))
sketch8.addConstraint(Sketcher.Constraint("Parallel", 6, 9))
sketch8.addConstraint(Sketcher.Constraint("Parallel", 9, 10))
sketch8.addConstraint(Sketcher.Constraint("Parallel", 7, 11))
sketch8.addConstraint(Sketcher.Constraint("Horizontal", 3, 3, 0, 2))
sketch8.addConstraint(Sketcher.Constraint("Horizontal", 4, 2, 7, 2))
sketch8.addConstraint(Sketcher.Constraint("Horizontal", 8, 2, 11, 2))
sketch8.addConstraint(Sketcher.Constraint("Vertical", 3, 3, 6, 2))
sketch8.addConstraint(Sketcher.Constraint("Vertical", 6, 2, 10, 2))
sketch8.addConstraint(Sketcher.Constraint("Equal", 6, 9))
sketch8.addConstraint(Sketcher.Constraint("DistanceY", 4, 2, 4, 1, Q("11 mm")))
sketch8.addConstraint(Sketcher.Constraint("Angle", 5, Q("-150 deg")))
sketch8.addConstraint(Sketcher.Constraint("Radius", 0, Q("13.25 mm")))
sketch8.addConstraint(Sketcher.Constraint("Distance", 7, Q("11 mm")))
sketch8.addConstraint(Sketcher.Constraint("DistanceY", 1, 2, -1, 1, Q("10 mm")))
sketch8.addConstraint(Sketcher.Constraint("DistanceY", 6, 2, 0, 3, Q("11 mm")))
sketch8.addConstraint(Sketcher.Constraint("DistanceY", 0, 3, -1, 1, Q("16.625 mm")))
sketch8.addConstraint(Sketcher.Constraint("DistanceX", 2, 2, 1, 3, Q("2.273402 mm")))
sketch8.addConstraint(Sketcher.Constraint("Distance", 5, Q("2.010021 mm")))
sketch8.addConstraint(Sketcher.Constraint("DistanceX", 1, 2, -1, 1, Q("17.320508 mm")))
sketch8.addConstraint(Sketcher.Constraint("DistanceY", 3, 2, -1, 1, Q("25.120579 mm")))
pad8 = body8.newObject("PartDesign::Pad", "Pad007")
pad8.Profile = sketch8
pad8.Length = 11.5
pad8.Midplane = True
body9 = doc.addObject("PartDesign::Body", "Body008")

# Sketch on XY plane
sketch9 = body9.newObject("Sketcher::SketchObject", "Sketch008")
sketch9.AttachmentSupport = (doc.getObject("XY_Plane008"), [""])
sketch9.MapMode = "FlatFace"
sketch9.addGeometry(Part.ArcOfCircle(Part.Circle(V(0, 33.2, 0), V(0, 0, 1), 13.2), math.radians(-160), math.radians(-20)), False)
sketch9.addGeometry(Part.ArcOfCircle(Part.Circle(V(0, 33.3, 0), V(0, 0, 1), 13.3), math.radians(-20), math.radians(0)), False)
sketch9.addGeometry(Part.ArcOfCircle(Part.Circle(V(0, 33.2, 0), V(0, 0, 1), 13.2), math.radians(0), math.radians(200)), False)
sketch9.addGeometry(Part.LineSegment(V(9.5, 27.8, 0), V(0, 22.2, 0)), False)
sketch9.addGeometry(Part.LineSegment(V(0, 22.2, 0), V(-9.5, 27.8, 0)), False)
sketch9.addGeometry(Part.LineSegment(V(-9.5, 27.8, 0), V(-9.5, 38.8, 0)), False)
sketch9.addGeometry(Part.LineSegment(V(-9.5, 38.8, 0), V(0, 44.2, 0)), False)
sketch9.addGeometry(Part.LineSegment(V(0, 44.2, 0), V(9.5, 38.8, 0)), False)
sketch9.addGeometry(Part.LineSegment(V(9.5, 38.8, 0), V(9.5, 27.8, 0)), False)
sketch9.addConstraint(Sketcher.Constraint("Tangent", 0, 2, 1, 1))
sketch9.addConstraint(Sketcher.Constraint("Tangent", 1, 2, 2, 1))
sketch9.addConstraint(Sketcher.Constraint("Tangent", 2, 2, 0, 1))
sketch9.addConstraint(Sketcher.Constraint("Coincident", 3, 2, 4, 1))
sketch9.addConstraint(Sketcher.Constraint("Coincident", 4, 2, 5, 1))
sketch9.addConstraint(Sketcher.Constraint("Coincident", 5, 2, 6, 1))
sketch9.addConstraint(Sketcher.Constraint("Coincident", 6, 2, 7, 1))
sketch9.addConstraint(Sketcher.Constraint("Coincident", 7, 2, 8, 1))
sketch9.addConstraint(Sketcher.Constraint("Coincident", 8, 2, 3, 1))
sketch9.addConstraint(Sketcher.Constraint("Vertical", 5))
sketch9.addConstraint(Sketcher.Constraint("Vertical", 8))
sketch9.addConstraint(Sketcher.Constraint("Symmetric", 0, 2, 2, 2, -2))
sketch9.addConstraint(Sketcher.Constraint("Symmetric", 5, 2, 7, 2, -2))
sketch9.addConstraint(Sketcher.Constraint("PointOnObject", 3, 2, -2))
sketch9.addConstraint(Sketcher.Constraint("PointOnObject", 6, 2, -2))
sketch9.addConstraint(Sketcher.Constraint("Parallel", 3, 6))
sketch9.addConstraint(Sketcher.Constraint("Parallel", 4, 7))
sketch9.addConstraint(Sketcher.Constraint("Horizontal", 2, 3, 1, 2))
sketch9.addConstraint(Sketcher.Constraint("DistanceY", 5, 1, 5, 2, Q("11 mm")))
sketch9.addConstraint(Sketcher.Constraint("Angle", 3, Q("-150 deg")))
sketch9.addConstraint(Sketcher.Constraint("Radius", 0, Q("13.25 mm")))
sketch9.addConstraint(Sketcher.Constraint("Distance", 3, Q("11 mm")))
sketch9.addConstraint(Sketcher.Constraint("DistanceY", 3, 2, 0, 3, Q("11 mm")))
sketch9.addConstraint(Sketcher.Constraint("DistanceY", -1, 1, 0, 3, Q("33.25 mm")))
sketch9.addConstraint(Sketcher.Constraint("DistanceY", -1, 1, 0, 2, Q("28.692068 mm")))
pad9 = body9.newObject("PartDesign::Pad", "Pad008")
pad9.Profile = sketch9
pad9.Length = 11.5
pad9.Midplane = True

doc.recompute()
